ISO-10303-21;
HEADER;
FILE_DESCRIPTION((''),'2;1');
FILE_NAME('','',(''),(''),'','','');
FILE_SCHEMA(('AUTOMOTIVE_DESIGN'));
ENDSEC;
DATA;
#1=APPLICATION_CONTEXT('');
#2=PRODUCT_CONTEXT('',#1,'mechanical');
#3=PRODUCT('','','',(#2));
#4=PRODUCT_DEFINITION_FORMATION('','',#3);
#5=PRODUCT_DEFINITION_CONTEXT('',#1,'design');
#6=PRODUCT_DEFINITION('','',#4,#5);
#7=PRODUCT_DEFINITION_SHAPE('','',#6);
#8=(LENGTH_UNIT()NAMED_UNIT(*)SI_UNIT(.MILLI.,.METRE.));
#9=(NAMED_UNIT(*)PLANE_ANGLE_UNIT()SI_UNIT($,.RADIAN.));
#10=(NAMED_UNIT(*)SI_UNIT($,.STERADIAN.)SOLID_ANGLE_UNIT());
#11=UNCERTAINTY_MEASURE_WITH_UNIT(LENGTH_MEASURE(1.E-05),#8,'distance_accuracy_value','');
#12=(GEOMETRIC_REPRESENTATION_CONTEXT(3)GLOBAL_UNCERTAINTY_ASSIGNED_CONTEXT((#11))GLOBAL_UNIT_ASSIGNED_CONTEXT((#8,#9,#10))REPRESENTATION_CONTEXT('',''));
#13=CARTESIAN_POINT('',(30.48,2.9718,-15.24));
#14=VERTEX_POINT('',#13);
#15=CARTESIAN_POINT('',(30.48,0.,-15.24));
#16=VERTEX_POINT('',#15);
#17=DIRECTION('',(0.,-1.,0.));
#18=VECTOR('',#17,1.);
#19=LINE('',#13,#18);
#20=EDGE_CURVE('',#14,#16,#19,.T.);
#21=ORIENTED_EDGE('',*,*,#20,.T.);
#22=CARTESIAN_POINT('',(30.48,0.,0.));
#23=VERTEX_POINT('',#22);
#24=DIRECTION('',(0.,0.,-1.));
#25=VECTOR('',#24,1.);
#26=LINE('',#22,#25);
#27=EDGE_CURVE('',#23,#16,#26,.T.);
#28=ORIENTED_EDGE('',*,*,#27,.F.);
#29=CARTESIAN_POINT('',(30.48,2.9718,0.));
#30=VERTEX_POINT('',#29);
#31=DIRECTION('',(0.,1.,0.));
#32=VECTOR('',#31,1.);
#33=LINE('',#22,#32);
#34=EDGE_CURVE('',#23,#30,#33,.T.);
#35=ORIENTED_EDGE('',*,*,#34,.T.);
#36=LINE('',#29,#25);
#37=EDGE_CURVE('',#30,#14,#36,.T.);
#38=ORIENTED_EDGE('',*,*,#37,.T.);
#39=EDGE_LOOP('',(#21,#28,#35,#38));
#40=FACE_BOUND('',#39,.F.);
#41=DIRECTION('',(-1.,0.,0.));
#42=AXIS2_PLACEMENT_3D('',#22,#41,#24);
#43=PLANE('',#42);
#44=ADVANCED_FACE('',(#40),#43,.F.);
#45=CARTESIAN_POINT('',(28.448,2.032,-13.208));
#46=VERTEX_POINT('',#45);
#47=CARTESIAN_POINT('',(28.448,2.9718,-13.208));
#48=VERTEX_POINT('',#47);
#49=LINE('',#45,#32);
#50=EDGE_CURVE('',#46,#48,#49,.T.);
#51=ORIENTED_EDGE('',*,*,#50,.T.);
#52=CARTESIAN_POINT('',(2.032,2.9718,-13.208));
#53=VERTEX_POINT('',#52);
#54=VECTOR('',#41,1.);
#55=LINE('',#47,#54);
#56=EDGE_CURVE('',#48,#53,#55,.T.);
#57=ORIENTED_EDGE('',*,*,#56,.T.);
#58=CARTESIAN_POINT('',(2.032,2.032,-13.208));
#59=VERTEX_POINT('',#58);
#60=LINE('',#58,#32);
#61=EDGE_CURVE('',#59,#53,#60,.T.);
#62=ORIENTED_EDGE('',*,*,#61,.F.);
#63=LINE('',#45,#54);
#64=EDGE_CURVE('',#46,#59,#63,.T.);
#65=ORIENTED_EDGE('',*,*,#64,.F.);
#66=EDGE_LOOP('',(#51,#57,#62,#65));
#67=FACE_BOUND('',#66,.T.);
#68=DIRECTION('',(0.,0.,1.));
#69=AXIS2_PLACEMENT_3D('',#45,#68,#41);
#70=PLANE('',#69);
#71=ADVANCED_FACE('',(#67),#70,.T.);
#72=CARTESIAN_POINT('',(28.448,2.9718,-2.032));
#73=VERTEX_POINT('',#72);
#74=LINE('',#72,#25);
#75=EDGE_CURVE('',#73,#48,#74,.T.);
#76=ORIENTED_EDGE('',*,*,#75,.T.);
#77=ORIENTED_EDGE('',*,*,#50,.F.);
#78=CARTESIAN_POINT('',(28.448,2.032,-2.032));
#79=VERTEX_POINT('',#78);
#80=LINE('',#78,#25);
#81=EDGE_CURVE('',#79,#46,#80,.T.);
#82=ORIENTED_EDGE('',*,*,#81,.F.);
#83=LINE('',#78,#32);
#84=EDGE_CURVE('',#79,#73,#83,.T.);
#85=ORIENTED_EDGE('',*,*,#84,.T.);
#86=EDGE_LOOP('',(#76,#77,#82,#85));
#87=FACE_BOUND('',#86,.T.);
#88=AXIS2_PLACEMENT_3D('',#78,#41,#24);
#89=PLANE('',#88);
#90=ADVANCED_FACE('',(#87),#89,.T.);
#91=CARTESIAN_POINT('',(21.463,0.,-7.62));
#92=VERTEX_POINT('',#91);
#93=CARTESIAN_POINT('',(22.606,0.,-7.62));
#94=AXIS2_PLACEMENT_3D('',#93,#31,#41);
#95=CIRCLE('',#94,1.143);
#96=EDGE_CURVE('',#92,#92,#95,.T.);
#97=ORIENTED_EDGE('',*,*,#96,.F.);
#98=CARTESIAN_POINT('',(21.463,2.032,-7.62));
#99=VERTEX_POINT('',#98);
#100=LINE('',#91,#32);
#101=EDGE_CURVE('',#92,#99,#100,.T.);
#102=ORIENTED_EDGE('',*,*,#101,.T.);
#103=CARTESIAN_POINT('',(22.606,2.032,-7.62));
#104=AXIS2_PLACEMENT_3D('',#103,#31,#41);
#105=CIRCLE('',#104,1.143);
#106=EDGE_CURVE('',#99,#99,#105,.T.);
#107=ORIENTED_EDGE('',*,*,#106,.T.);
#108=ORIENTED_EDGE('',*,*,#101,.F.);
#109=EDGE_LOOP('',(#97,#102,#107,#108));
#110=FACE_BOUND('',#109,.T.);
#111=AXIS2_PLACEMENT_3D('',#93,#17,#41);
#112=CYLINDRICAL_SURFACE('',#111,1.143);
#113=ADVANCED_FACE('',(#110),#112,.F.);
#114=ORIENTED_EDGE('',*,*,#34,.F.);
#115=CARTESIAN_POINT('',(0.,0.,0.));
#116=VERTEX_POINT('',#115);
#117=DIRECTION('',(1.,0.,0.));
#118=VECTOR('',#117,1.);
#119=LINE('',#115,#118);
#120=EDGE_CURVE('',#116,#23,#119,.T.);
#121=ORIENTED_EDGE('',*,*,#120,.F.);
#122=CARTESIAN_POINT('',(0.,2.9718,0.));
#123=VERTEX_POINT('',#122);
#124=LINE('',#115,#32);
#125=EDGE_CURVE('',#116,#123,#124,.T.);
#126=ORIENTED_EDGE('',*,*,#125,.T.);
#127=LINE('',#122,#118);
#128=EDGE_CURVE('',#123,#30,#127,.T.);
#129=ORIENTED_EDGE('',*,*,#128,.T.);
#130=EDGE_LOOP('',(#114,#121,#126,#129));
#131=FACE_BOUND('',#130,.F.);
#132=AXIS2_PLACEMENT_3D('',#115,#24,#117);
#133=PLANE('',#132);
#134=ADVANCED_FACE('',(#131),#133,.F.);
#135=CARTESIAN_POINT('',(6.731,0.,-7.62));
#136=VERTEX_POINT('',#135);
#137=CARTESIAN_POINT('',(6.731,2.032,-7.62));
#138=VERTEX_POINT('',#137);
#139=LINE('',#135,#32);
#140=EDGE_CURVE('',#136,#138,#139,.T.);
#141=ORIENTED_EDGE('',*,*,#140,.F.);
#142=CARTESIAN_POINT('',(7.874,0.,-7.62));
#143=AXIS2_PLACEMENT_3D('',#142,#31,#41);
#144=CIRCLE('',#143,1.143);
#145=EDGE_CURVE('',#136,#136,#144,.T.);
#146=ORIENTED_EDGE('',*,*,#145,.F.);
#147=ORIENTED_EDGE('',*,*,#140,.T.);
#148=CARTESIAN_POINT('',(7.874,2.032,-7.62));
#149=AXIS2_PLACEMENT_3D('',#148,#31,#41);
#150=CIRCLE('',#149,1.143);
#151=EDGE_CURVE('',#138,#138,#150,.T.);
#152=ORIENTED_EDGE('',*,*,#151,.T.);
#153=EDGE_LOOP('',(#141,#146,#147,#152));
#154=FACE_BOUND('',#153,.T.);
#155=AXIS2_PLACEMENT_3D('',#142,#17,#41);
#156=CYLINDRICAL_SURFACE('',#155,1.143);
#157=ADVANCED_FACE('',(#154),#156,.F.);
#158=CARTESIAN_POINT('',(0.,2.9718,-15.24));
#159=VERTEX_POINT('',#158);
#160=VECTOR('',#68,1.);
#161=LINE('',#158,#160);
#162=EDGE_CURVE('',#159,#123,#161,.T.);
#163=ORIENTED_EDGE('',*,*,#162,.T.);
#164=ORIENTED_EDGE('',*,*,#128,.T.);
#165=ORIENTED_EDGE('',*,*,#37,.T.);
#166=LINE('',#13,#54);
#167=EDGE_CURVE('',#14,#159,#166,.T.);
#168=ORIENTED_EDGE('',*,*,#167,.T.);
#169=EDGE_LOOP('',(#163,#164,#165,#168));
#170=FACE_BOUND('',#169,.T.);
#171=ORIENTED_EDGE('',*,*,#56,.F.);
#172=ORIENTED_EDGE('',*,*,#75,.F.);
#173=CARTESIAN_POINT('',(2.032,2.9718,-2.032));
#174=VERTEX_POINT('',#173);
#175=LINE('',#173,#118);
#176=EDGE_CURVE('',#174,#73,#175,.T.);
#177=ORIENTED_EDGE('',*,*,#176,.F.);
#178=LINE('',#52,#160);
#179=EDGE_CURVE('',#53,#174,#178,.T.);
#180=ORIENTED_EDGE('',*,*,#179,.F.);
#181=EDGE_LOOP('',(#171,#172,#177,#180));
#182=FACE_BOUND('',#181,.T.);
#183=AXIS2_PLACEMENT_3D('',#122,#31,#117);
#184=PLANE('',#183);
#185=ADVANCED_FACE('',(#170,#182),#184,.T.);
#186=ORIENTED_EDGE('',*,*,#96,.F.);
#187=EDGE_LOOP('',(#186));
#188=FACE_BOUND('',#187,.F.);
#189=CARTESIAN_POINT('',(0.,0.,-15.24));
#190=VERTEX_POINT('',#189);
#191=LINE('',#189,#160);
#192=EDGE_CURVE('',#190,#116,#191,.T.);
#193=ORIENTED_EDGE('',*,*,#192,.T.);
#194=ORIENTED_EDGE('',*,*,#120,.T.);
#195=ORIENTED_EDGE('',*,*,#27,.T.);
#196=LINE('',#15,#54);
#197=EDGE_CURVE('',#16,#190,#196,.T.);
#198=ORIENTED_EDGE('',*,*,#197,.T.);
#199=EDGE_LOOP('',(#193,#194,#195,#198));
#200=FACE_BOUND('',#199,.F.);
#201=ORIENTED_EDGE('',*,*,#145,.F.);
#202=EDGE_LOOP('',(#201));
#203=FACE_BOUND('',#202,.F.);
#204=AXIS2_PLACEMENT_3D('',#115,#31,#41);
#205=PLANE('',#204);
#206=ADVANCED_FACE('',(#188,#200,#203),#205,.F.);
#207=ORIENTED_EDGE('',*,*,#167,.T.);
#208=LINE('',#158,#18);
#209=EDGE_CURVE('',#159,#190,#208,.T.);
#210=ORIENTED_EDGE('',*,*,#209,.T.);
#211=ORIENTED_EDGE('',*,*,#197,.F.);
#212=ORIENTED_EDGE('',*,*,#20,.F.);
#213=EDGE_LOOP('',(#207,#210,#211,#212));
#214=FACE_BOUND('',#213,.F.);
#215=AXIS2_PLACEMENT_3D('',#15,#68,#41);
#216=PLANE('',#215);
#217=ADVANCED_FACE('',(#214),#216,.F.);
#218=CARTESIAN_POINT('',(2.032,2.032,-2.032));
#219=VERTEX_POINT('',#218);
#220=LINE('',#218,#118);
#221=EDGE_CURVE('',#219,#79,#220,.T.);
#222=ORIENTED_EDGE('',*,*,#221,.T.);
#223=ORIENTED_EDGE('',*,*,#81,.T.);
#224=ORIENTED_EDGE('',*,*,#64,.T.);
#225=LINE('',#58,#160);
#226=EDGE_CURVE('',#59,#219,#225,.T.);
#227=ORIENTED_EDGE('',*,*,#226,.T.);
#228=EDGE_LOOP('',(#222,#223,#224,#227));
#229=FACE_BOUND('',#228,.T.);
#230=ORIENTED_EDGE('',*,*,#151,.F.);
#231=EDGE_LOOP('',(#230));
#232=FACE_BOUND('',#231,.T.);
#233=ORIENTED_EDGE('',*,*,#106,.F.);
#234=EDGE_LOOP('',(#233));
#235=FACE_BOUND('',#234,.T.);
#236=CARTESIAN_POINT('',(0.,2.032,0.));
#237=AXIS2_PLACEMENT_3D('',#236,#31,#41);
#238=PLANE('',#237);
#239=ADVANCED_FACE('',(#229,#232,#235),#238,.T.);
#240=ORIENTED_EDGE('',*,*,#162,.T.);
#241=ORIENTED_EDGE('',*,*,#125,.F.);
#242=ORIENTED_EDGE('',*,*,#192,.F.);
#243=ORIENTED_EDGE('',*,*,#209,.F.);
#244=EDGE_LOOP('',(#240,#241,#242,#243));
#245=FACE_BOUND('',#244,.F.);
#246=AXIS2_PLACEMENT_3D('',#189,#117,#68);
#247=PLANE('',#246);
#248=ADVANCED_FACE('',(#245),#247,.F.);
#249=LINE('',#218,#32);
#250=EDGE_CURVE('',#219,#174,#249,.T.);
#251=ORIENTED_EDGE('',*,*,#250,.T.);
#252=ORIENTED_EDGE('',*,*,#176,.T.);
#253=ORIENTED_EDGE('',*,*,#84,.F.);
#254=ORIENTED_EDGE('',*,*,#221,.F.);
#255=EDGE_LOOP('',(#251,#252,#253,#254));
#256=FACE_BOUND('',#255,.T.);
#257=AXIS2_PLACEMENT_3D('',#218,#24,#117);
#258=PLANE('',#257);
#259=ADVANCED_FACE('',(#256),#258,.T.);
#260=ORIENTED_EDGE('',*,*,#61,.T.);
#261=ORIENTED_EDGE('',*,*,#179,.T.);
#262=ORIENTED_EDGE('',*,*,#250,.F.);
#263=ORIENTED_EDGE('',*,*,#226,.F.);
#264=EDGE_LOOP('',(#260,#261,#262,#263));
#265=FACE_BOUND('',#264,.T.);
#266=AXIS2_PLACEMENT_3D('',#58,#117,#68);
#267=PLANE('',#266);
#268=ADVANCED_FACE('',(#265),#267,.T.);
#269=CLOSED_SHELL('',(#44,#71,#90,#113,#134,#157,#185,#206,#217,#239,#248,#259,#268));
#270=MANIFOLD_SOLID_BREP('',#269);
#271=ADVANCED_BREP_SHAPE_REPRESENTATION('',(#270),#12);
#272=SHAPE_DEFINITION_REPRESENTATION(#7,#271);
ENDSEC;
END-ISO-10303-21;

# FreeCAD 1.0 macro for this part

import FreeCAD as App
import Part
import Sketcher
from FreeCAD import Vector
Q = App.Units.Quantity

doc = App.newDocument("Part")
body = doc.addObject("PartDesign::Body", "Body")

# Sketch on XZ plane
sketch1 = body.newObject("Sketcher::SketchObject", "Sketch")
sketch1.AttachmentSupport = (doc.getObject("XZ_Plane"), [""])
sketch1.MapMode = "FlatFace"
sketch1.addGeometry([
    Part.LineSegment(Vector(0, -15.2, 0), Vector(0, 0, 0)),  # 0
    Part.LineSegment(Vector(0, 0, 0), Vector(30.5, 0, 0)),  # 1
    Part.LineSegment(Vector(30.5, 0, 0), Vector(30.5, -15.2, 0)),  # 2
    Part.LineSegment(Vector(30.5, -15.2, 0), Vector(0, -15.2, 0)),  # 3
    Part.Circle(Vector(22.6, -7.6, 0), Vector(0, 0, 1), 1.1),  # 4
    Part.Circle(Vector(7.9, -7.6, 0), Vector(0, 0, 1), 1.1),  # 5
], False)
sketch1.addConstraint([
    Sketcher.Constraint("Coincident", 0, 2, 1, 1),
    Sketcher.Constraint("Coincident", 1, 2, 2, 1),
    Sketcher.Constraint("Coincident", 2, 2, 3, 1),
    Sketcher.Constraint("Coincident", 3, 2, 0, 1),
    Sketcher.Constraint("Vertical", 0),
    Sketcher.Constraint("Horizontal", 1),
    Sketcher.Constraint("Vertical", 2),
    Sketcher.Constraint("Horizontal", 3),
    Sketcher.Constraint("Coincident", 0, 2, -1, 1),
    Sketcher.Constraint("Equal", 4, 5),
    Sketcher.Constraint("Horizontal", 4, 3, 5, 3),
    Sketcher.Constraint("Diameter", 4, Q("0.09 in")),
    Sketcher.Constraint("DistanceX", 1, 1, 1, 2, Q("1.2 in")),
    Sketcher.Constraint("DistanceY", 0, 1, 0, 2, Q("0.6 in")),
    Sketcher.Constraint("DistanceX", -1, 1, 5, 3, Q("0.31 in")),
    Sketcher.Constraint("DistanceX", 5, 3, 4, 3, Q("0.58 in")),
    Sketcher.Constraint("DistanceY", 4, 3, -1, 1, Q("0.3 in")),
])
pad1 = body.newObject("PartDesign::Pad", "Pad")
pad1.Profile = sketch1
pad1.Length = Q("0.08 in")
pad1.Reversed = True

# Sketch on XZ plane
sketch2 = body.newObject("Sketcher::SketchObject", "Sketch001")
sketch2.AttachmentSupport = (doc.getObject("XZ_Plane"), [""])
sketch2.MapMode = "FlatFace"
sketch2.AttachmentOffset = App.Placement(Vector(0, 0, -0.08 * 25.4), App.Rotation())
sketch2.addGeometry([
    Part.LineSegment(Vector(0, -15, 0), Vector(0, 0, 0)),  # 0
    Part.LineSegment(Vector(0, 0, 0), Vector(30, 0, 0)),  # 1
    Part.LineSegment(Vector(30, 0, 0), Vector(30, -15, 0)),  # 2
    Part.LineSegment(Vector(30, -15, 0), Vector(0, -15, 0)),  # 3
    Part.LineSegment(Vector(28, -2, 0), Vector(2, -2, 0)),  # 4
    Part.LineSegment(Vector(2, -2, 0), Vector(2, -13, 0)),  # 5
    Part.LineSegment(Vector(2, -13, 0), Vector(28, -13, 0)),  # 6
    Part.LineSegment(Vector(28, -13, 0), Vector(28, -2, 0)),  # 7
], False)
sketch2.addConstraint([
    Sketcher.Constraint("Coincident", 0, 2, 1, 1),
    Sketcher.Constraint("Coincident", 1, 2, 2, 1),
    Sketcher.Constraint("Coincident", 2, 2, 3, 1),
    Sketcher.Constraint("Coincident", 3, 2, 0, 1),
    Sketcher.Constraint("Coincident", 4, 2, 5, 1),
    Sketcher.Constraint("Coincident", 5, 2, 6, 1),
    Sketcher.Constraint("Coincident", 6, 2, 7, 1),
    Sketcher.Constraint("Coincident", 7, 2, 4, 1),
    Sketcher.Constraint("Vertical", 0),
    Sketcher.Constraint("Horizontal", 1),
    Sketcher.Constraint("Vertical", 2),
    Sketcher.Constraint("Horizontal", 3),
    Sketcher.Constraint("Horizontal", 4),
    Sketcher.Constraint("Vertical", 5),
    Sketcher.Constraint("Horizontal", 6),
    Sketcher.Constraint("Vertical", 7),
    Sketcher.Constraint("Coincident", 0, 2, -1, 1),
    Sketcher.Constraint("DistanceX", -1, 1, 4, 2, Q("0.08 in")),
    Sketcher.Constraint("DistanceY", 4, 2, -1, 1, Q("0.08 in")),
    Sketcher.Constraint("DistanceY", 3, 2, 5, 2, Q("0.08 in")),
    Sketcher.Constraint("DistanceX", 6, 2, 2, 2, Q("0.08 in")),
    Sketcher.Constraint("DistanceX", 1, 1, 1, 2, Q("1.2 in")),
    Sketcher.Constraint("DistanceY", 0, 1, 0, 2, Q("0.6 in")),
])
pad2 = body.newObject("PartDesign::Pad", "Pad001")
pad2.Profile = sketch2
pad2.Length = Q("0.037 in")
pad2.Reversed = True

doc.recompute()
